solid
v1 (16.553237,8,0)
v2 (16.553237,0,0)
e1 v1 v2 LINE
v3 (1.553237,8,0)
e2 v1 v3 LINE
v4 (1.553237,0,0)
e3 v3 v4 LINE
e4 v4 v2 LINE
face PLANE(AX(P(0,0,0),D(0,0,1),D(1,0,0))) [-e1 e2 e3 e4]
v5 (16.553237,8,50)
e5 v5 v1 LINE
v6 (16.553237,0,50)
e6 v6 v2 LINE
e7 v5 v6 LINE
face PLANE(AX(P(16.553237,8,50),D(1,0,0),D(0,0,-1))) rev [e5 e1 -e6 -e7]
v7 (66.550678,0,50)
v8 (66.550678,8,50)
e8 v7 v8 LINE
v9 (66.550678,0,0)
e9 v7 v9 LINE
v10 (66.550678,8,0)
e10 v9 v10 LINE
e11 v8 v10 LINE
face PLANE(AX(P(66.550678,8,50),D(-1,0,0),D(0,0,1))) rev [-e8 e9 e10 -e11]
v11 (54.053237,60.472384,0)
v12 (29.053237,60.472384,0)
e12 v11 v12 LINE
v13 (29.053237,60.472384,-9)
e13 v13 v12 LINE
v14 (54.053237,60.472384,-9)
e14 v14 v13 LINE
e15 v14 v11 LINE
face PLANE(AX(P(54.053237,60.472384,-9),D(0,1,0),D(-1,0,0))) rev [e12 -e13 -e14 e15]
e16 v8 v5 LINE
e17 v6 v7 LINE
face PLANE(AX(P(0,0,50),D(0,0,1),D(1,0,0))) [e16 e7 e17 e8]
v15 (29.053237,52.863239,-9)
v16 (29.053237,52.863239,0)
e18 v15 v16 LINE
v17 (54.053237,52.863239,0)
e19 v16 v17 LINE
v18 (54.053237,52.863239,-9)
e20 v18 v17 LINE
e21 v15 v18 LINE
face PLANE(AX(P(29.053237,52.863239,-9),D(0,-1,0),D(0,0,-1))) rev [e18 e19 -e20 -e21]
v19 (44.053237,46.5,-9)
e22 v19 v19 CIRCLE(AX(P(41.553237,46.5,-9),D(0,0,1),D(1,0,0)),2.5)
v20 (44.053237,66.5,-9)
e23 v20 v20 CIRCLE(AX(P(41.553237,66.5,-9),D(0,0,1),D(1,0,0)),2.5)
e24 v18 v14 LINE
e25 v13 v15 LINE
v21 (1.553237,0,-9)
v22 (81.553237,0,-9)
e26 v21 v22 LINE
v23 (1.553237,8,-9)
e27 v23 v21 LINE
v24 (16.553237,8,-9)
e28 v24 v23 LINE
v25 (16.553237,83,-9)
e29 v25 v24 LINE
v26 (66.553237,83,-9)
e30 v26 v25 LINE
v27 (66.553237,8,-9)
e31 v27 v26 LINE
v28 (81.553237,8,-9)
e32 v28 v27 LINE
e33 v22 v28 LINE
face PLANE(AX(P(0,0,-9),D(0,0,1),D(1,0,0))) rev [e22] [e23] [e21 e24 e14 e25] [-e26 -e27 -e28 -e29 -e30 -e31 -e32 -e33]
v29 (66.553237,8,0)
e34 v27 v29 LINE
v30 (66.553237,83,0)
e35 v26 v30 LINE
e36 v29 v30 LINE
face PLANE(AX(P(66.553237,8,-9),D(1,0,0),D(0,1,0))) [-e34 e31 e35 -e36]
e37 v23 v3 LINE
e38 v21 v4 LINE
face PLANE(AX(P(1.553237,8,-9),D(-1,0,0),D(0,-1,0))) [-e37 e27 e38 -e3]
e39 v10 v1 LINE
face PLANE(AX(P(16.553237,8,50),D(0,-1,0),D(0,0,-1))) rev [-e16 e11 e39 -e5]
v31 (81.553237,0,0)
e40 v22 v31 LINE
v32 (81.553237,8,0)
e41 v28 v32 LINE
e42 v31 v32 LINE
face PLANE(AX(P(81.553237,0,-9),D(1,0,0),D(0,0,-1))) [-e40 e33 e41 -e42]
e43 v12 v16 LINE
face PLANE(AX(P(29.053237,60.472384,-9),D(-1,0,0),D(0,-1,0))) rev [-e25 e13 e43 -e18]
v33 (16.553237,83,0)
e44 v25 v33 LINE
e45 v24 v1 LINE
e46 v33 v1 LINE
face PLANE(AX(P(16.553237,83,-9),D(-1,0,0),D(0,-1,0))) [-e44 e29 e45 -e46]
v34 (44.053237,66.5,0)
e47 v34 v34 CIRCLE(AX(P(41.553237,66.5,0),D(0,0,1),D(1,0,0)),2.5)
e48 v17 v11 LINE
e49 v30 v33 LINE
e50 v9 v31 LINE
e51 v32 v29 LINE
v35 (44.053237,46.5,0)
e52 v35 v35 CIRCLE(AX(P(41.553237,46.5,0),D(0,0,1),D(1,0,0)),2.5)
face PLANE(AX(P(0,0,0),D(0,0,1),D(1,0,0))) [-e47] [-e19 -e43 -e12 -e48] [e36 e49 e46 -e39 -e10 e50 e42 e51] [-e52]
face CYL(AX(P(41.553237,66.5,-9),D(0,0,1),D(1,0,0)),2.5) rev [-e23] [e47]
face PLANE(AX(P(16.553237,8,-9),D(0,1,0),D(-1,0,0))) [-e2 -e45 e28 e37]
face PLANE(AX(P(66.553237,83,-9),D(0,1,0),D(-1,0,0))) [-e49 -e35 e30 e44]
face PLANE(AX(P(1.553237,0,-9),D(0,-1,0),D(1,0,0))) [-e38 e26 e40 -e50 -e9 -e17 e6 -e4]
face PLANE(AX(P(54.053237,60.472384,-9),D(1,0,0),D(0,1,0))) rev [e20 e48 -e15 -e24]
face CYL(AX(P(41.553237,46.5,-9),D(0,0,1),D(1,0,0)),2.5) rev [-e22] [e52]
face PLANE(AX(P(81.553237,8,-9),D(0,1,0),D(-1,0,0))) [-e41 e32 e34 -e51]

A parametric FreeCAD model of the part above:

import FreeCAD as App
import Part
import Sketcher

V = App.Vector
Q = App.Units.Quantity

doc = App.newDocument("Part")
body = doc.addObject("PartDesign::Body", "Body")

# Sketch on XY plane
sketch1 = body.newObject("Sketcher::SketchObject", "Sketch")
sketch1.AttachmentSupport = (doc.getObject("XY_Plane"), [""])
sketch1.MapMode = "FlatFace"
sketch1.addGeometry(Part.LineSegment(V(1.553237, 0, 0), V(81.553237, 0, 0)), False)
sketch1.addGeometry(Part.LineSegment(V(81.553237, 0, 0), V(81.553237, 8, 0)), False)
sketch1.addGeometry(Part.LineSegment(V(81.553237, 8, 0), V(66.553237, 8, 0)), False)
sketch1.addGeometry(Part.LineSegment(V(66.553237, 8, 0), V(66.553237, 83, 0)), False)
sketch1.addGeometry(Part.LineSegment(V(66.553237, 83, 0), V(16.553237, 83, 0)), False)
sketch1.addGeometry(Part.LineSegment(V(16.553237, 83, 0), V(16.553237, 8, 0)), False)
sketch1.addGeometry(Part.LineSegment(V(16.553237, 8, 0), V(1.553237, 8, 0)), False)
sketch1.addGeometry(Part.LineSegment(V(1.553237, 8, 0), V(1.553237, 0, 0)), False)
sketch1.addGeometry(Part.Circle(V(41.553237, 46.5, 0), V(0, 0, 1), 2.5), False)
sketch1.addGeometry(Part.LineSegment(V(54.053237, 52.863239, 0), V(29.053237, 52.863239, 0)), False)
sketch1.addGeometry(Part.LineSegment(V(29.053237, 52.863239, 0), V(29.053237, 60.472384, 0)), False)
sketch1.addGeometry(Part.LineSegment(V(29.053237, 60.472384, 0), V(54.053237, 60.472384, 0)), False)
sketch1.addGeometry(Part.LineSegment(V(54.053237, 60.472384, 0), V(54.053237, 52.863239, 0)), False)
sketch1.addGeometry(Part.Circle(V(41.553237, 66.5, 0), V(0, 0, 1), 2.5), False)
sketch1.addConstraint(Sketcher.Constraint("Coincident", 0, 2, 1, 1))
sketch1.addConstraint(Sketcher.Constraint("Coincident", 1, 2, 2, 1))
sketch1.addConstraint(Sketcher.Constraint("Coincident", 2, 2, 3, 1))
sketch1.addConstraint(Sketcher.Constraint("Coincident", 3, 2, 4, 1))
sketch1.addConstraint(Sketcher.Constraint("Coincident", 4, 2, 5, 1))
sketch1.addConstraint(Sketcher.Constraint("Coincident", 5, 2, 6, 1))
sketch1.addConstraint(Sketcher.Constraint("Coincident", 6, 2, 7, 1))
sketch1.addConstraint(Sketcher.Constraint("Coincident", 7, 2, 0, 1))
sketch1.addConstraint(Sketcher.Constraint("Coincident", 9, 2, 10, 1))
sketch1.addConstraint(Sketcher.Constraint("Coincident", 10, 2, 11, 1))
sketch1.addConstraint(Sketcher.Constraint("Coincident", 11, 2, 12, 1))
sketch1.addConstraint(Sketcher.Constraint("Coincident", 12, 2, 9, 1))
sketch1.addConstraint(Sketcher.Constraint("Horizontal", 0))
sketch1.addConstraint(Sketcher.Constraint("Vertical", 1))
sketch1.addConstraint(Sketcher.Constraint("Horizontal", 2))
sketch1.addConstraint(Sketcher.Constraint("Vertical", 3))
sketch1.addConstraint(Sketcher.Constraint("Horizontal", 4))
sketch1.addConstraint(Sketcher.Constraint("Vertical", 5))
sketch1.addConstraint(Sketcher.Constraint("Horizontal", 6))
sketch1.addConstraint(Sketcher.Constraint("Vertical", 7))
sketch1.addConstraint(Sketcher.Constraint("Horizontal", 9))
sketch1.addConstraint(Sketcher.Constraint("Vertical", 10))
sketch1.addConstraint(Sketcher.Constraint("Horizontal", 11))
sketch1.addConstraint(Sketcher.Constraint("Vertical", 12))
sketch1.addConstraint(Sketcher.Constraint("Equal", 8, 13))
sketch1.addConstraint(Sketcher.Constraint("PointOnObject", 0, 2, -1))
sketch1.addConstraint(Sketcher.Constraint("Horizontal", 2, 2, 5, 2))
sketch1.addConstraint(Sketcher.Constraint("Vertical", 8, 3, 13, 3))
sketch1.addConstraint(Sketcher.Constraint("Equal", 2, 6))
sketch1.addConstraint(Sketcher.Constraint("Diameter", 8, Q("5 mm")))
sketch1.addConstraint(Sketcher.Constraint("DistanceX", 0, 1, 0, 2, Q("80 mm")))
sketch1.addConstraint(Sketcher.Constraint("DistanceX", 2, 2, 2, 1, Q("15 mm")))
sketch1.addConstraint(Sketcher.Constraint("DistanceX", 9, 2, 9, 1, Q("25 mm")))
sketch1.addConstraint(Sketcher.Constraint("DistanceY", 1, 1, 1, 2, Q("8 mm")))
sketch1.addConstraint(Sketcher.Constraint("DistanceY", 3, 1, 3, 2, Q("75 mm")))
sketch1.addConstraint(Sketcher.Constraint("DistanceY", 8, 3, 13, 3, Q("20 mm")))
sketch1.addConstraint(Sketcher.Constraint("DistanceX", 8, 3, 0, 2, Q("40 mm")))
sketch1.addConstraint(Sketcher.Constraint("DistanceY", -1, 1, 8, 3, Q("46.5 mm")))
sketch1.addConstraint(Sketcher.Constraint("DistanceX", 9, 2, 8, 3, Q("12.5 mm")))
sketch1.addConstraint(Sketcher.Constraint("DistanceY", 10, 1, 10, 2, Q("7.609145 mm")))
sketch1.addConstraint(Sketcher.Constraint("DistanceY", -1, 1, 9, 2, Q("52.863239 mm")))
sketch1.addConstraint(Sketcher.Constraint("DistanceX", -1, 1, 8, 3, Q("41.553237 mm")))
pad1 = body.newObject("PartDesign::Pad", "Pad")
pad1.Profile = sketch1
pad1.Length = 9
pad1.Reversed = True

# Sketch on XY plane
sketch2 = body.newObject("Sketcher::SketchObject", "Sketch001")
sketch2.AttachmentSupport = (doc.getObject("XY_Plane"), [""])
sketch2.MapMode = "FlatFace"
sketch2.addGeometry(Part.LineSegment(V(16.553237, 8, 0), V(16.553237, 0, 0)), False)
sketch2.addGeometry(Part.LineSegment(V(16.553237, 0, 0), V(66.550678, 0, 0)), False)
sketch2.addGeometry(Part.LineSegment(V(66.550678, 0, 0), V(66.550678, 8, 0)), False)
sketch2.addGeometry(Part.LineSegment(V(66.550678, 8, 0), V(16.553237, 8, 0)), False)
sketch2.addConstraint(Sketcher.Constraint("Coincident", 0, 2, 1, 1))
sketch2.addConstraint(Sketcher.Constraint("Coincident", 1, 2, 2, 1))
sketch2.addConstraint(Sketcher.Constraint("Coincident", 2, 2, 3, 1))
sketch2.addConstraint(Sketcher.Constraint("Coincident", 3, 2, 0, 1))
sketch2.addConstraint(Sketcher.Constraint("Vertical", 0))
sketch2.addConstraint(Sketcher.Constraint("Horizontal", 1))
sketch2.addConstraint(Sketcher.Constraint("Vertical", 2))
sketch2.addConstraint(Sketcher.Constraint("Horizontal", 3))
sketch2.addConstraint(Sketcher.Constraint("PointOnObject", 0, 2, -1))
sketch2.addConstraint(Sketcher.Constraint("DistanceY", 0, 2, 0, 1, Q("8 mm")))
sketch2.addConstraint(Sketcher.Constraint("DistanceX", 1, 1, 1, 2, Q("49.997441 mm")))
sketch2.addConstraint(Sketcher.Constraint("DistanceX", -1, 1, 0, 2, Q("16.553237 mm")))
pad2 = body.newObject("PartDesign::Pad", "Pad001")
pad2.Profile = sketch2
pad2.Length = 50

doc.recompute()
